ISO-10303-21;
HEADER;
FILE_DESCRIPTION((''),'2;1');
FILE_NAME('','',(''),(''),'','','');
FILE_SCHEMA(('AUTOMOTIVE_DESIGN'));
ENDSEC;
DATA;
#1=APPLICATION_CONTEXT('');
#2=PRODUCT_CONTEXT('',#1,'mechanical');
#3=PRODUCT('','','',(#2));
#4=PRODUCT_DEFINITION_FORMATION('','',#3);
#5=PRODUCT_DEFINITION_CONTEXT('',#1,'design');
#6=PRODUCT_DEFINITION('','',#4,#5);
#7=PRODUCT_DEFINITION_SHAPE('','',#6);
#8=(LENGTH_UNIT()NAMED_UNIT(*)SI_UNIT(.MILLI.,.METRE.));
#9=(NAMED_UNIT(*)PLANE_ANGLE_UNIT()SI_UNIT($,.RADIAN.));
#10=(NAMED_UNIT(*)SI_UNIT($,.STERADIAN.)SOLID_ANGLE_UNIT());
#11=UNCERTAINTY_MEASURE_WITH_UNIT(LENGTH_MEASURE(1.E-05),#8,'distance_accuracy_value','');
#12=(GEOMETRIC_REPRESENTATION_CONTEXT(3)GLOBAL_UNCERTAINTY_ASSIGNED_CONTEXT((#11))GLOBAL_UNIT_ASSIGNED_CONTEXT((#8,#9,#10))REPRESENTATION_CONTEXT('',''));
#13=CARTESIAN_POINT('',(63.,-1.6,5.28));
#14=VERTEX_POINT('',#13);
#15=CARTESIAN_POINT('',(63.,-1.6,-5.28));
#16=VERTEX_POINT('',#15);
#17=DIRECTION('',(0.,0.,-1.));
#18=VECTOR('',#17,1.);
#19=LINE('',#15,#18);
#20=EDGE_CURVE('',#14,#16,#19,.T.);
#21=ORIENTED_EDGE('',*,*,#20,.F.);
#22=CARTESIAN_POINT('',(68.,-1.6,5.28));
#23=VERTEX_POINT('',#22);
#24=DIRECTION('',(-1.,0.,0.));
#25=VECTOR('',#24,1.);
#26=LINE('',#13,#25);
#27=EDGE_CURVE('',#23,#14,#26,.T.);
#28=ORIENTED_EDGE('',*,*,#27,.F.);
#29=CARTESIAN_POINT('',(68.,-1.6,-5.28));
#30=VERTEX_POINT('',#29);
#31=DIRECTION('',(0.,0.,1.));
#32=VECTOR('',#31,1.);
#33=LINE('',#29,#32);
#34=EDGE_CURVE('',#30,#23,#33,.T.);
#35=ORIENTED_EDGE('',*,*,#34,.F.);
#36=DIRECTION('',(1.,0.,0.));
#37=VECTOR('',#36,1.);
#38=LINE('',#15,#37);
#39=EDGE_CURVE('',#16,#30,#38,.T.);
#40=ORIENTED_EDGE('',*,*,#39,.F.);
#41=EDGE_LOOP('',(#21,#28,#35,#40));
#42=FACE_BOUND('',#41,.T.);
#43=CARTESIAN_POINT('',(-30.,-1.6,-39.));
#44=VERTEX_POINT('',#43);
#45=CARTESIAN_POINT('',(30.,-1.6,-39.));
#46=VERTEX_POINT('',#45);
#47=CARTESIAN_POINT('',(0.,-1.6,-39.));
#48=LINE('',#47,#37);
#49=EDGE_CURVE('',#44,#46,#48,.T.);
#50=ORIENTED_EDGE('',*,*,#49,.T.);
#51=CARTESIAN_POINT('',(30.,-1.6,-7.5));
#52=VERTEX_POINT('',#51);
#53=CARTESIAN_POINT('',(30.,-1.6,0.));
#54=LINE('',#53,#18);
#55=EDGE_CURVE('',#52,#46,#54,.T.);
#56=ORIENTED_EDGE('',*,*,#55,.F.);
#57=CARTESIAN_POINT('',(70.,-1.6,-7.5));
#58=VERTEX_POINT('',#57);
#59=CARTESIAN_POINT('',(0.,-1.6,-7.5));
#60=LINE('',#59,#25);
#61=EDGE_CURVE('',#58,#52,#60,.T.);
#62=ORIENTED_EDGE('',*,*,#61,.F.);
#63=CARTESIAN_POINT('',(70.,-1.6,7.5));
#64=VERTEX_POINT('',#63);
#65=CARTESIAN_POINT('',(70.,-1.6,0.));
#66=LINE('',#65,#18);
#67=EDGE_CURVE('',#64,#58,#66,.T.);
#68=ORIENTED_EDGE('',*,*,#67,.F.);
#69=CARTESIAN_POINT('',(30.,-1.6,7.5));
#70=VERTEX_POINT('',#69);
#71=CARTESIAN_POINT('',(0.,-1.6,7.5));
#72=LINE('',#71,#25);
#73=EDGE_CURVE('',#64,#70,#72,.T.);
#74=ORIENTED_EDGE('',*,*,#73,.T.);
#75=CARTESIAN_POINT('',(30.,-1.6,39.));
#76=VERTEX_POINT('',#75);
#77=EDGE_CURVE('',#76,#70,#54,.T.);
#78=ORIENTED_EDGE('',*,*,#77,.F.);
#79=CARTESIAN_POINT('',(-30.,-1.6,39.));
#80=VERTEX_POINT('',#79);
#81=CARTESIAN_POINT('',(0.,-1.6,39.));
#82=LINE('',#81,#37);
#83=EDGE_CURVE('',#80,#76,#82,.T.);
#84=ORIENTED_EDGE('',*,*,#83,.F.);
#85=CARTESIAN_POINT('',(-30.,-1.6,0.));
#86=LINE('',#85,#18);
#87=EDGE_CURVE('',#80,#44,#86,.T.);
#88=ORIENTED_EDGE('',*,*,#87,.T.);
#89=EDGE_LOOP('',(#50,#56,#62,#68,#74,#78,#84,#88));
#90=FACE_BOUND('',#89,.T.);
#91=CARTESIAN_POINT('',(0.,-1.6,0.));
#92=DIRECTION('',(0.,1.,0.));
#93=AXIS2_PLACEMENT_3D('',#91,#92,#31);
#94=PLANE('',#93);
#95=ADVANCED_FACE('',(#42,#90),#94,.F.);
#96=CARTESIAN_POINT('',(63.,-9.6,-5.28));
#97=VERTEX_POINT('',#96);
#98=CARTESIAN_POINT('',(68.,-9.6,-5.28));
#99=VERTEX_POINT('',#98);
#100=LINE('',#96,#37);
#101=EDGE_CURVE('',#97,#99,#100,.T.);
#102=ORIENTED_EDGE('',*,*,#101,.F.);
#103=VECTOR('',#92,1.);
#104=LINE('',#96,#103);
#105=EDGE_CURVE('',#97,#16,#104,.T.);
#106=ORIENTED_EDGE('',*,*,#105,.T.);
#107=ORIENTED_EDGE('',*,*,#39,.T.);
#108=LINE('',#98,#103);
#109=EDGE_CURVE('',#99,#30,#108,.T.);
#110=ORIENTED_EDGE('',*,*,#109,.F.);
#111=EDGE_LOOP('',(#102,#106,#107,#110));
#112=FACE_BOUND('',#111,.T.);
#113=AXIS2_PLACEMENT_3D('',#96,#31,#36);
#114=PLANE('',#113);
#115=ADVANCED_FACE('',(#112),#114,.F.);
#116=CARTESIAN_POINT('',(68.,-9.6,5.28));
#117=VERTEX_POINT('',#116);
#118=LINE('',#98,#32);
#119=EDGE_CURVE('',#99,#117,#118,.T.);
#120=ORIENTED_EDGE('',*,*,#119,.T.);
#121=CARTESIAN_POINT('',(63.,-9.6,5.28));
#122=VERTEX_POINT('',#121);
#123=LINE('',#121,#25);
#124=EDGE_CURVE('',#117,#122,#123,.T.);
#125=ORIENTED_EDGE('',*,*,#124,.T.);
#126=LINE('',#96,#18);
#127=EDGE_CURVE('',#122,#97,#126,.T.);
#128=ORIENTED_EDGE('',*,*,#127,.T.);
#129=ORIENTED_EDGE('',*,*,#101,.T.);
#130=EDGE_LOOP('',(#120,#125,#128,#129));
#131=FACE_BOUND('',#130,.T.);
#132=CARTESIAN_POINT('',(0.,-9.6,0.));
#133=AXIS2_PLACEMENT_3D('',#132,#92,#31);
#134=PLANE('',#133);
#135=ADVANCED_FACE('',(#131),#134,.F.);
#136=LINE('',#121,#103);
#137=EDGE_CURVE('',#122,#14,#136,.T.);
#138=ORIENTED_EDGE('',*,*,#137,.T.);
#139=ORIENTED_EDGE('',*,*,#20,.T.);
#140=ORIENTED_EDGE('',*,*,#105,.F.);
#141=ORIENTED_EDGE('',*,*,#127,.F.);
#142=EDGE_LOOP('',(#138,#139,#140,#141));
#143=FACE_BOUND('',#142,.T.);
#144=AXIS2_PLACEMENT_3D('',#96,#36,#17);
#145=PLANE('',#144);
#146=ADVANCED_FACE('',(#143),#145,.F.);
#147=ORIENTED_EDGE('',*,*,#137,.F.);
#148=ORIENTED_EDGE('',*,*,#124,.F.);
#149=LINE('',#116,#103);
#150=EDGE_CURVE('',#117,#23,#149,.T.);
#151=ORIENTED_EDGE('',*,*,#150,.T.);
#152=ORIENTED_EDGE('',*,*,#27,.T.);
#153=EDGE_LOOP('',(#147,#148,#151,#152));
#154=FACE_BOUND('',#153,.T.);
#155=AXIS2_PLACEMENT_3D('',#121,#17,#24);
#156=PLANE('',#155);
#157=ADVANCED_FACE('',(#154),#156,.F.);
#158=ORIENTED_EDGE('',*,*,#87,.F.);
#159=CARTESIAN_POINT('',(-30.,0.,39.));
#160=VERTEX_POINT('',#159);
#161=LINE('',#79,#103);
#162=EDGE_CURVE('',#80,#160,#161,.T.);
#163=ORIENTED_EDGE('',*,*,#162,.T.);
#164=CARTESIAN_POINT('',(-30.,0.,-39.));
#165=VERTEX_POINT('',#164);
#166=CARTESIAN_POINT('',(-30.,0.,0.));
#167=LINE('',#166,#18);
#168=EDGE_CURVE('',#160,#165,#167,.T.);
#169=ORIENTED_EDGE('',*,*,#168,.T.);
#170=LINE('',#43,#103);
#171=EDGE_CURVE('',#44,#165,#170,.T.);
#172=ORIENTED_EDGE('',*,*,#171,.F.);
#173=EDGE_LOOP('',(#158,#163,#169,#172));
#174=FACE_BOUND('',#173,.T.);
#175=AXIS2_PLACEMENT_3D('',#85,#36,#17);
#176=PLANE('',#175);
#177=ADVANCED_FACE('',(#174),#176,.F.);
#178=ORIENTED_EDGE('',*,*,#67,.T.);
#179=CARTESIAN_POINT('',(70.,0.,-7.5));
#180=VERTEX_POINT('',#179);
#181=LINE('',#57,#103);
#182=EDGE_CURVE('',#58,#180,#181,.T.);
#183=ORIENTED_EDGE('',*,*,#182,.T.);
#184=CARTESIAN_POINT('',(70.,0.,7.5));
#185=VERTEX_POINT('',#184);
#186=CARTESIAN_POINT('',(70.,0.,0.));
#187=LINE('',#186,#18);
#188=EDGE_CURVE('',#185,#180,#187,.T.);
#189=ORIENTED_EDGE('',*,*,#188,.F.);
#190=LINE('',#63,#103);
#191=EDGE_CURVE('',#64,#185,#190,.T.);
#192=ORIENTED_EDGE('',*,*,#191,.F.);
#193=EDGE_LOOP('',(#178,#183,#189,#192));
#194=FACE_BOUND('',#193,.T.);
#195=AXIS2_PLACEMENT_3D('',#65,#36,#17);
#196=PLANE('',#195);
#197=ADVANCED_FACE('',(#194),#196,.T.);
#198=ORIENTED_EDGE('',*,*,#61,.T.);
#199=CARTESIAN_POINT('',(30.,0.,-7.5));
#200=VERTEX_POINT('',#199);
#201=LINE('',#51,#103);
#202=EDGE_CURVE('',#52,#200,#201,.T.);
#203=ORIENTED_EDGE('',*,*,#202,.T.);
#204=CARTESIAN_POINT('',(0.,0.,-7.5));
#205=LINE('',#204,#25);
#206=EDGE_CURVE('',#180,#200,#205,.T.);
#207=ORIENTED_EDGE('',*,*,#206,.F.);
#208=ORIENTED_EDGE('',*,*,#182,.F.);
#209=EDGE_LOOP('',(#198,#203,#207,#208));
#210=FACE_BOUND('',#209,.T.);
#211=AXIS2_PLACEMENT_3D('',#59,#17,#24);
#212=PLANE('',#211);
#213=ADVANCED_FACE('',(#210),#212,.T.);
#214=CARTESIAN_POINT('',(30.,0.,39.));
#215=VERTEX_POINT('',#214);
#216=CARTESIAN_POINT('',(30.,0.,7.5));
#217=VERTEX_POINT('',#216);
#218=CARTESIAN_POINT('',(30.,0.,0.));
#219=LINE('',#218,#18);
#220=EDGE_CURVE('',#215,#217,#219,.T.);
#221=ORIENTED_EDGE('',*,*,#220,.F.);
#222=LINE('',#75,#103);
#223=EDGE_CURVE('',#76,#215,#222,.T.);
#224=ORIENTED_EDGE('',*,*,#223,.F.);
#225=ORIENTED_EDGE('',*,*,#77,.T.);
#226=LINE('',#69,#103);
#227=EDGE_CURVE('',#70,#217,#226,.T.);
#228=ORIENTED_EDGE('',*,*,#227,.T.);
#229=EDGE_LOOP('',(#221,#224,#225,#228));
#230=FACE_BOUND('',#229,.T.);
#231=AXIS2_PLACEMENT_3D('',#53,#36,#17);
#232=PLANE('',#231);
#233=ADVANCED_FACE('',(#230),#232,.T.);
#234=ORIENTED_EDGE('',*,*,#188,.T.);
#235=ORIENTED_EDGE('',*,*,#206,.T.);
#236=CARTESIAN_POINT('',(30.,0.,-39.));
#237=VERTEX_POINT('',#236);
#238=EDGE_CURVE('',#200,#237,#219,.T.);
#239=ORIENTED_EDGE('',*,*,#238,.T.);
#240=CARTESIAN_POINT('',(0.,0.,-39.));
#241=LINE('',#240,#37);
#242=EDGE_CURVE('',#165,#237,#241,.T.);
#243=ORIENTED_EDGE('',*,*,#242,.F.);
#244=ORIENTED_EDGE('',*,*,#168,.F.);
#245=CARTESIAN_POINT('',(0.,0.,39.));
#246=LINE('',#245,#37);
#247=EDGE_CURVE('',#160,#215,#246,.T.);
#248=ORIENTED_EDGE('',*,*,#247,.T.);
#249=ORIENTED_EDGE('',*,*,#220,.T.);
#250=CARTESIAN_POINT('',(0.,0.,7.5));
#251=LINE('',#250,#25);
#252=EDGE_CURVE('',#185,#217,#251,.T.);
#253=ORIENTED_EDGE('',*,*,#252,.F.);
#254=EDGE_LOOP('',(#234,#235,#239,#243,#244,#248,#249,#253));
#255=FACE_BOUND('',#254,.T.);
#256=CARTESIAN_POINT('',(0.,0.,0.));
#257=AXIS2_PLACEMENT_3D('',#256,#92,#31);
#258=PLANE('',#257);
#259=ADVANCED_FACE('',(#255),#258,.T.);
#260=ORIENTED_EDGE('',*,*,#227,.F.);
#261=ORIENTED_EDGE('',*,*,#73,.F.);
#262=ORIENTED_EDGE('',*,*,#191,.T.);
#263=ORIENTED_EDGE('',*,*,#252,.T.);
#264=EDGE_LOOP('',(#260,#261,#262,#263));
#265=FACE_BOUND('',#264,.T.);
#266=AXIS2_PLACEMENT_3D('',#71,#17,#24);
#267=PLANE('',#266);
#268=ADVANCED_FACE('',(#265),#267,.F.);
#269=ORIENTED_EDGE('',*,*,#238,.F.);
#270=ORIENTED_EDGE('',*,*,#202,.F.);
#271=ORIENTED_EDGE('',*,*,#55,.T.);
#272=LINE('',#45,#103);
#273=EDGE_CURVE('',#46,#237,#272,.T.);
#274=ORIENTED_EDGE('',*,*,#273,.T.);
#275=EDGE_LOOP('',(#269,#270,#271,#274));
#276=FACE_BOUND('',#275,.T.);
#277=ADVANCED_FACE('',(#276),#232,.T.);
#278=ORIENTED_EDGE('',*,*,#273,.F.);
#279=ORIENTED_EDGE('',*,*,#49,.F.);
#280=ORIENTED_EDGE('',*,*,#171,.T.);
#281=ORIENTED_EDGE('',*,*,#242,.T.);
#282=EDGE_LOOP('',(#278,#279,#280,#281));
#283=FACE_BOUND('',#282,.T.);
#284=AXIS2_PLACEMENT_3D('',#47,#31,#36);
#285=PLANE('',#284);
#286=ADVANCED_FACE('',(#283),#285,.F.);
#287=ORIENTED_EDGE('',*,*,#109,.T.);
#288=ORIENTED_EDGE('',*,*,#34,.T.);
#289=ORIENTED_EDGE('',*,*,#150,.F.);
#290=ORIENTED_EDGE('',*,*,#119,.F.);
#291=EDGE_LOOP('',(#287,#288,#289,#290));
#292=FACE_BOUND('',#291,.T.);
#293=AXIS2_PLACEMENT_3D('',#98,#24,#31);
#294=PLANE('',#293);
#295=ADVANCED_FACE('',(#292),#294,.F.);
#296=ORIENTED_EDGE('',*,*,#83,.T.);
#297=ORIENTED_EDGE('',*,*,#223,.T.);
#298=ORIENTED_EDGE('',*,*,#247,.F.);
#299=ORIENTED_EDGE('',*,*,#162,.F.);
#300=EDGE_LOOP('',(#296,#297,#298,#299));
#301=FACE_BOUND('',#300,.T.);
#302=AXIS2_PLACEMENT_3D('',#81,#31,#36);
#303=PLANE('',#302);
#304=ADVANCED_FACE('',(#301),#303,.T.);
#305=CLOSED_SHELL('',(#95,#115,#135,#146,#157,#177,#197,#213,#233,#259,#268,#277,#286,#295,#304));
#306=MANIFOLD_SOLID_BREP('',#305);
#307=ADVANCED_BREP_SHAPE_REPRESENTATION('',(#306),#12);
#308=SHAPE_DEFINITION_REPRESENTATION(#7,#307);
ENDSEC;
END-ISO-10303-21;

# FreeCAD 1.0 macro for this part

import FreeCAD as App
import Part
import Sketcher

V = App.Vector


def add_polygon(sketch, points):
    """Adds a closed chain of lines whose ends are joined by coincident constraints."""
    first, n = sketch.GeometryCount, len(points)
    for a, b in zip(points, points[1:] + points[:1]):
        sketch.addGeometry(Part.LineSegment(App.Vector(*a, 0), App.Vector(*b, 0)), False)
    for i in range(n):
        sketch.addConstraint(Sketcher.Constraint("Coincident", first + i, 2, first + (i + 1) % n, 1))

doc = App.newDocument("Part")
body = doc.addObject("PartDesign::Body", "Body")

# Sketch on XZ plane
sketch1 = body.newObject("Sketcher::SketchObject", "Sketch")
sketch1.AttachmentSupport = (doc.getObject("XZ_Plane"), [""])
sketch1.MapMode = "FlatFace"
add_polygon(sketch1, [(-30, -39), (-30, 39), (30, 39), (30, 8), (70, 8), (70, -8), (30, -8), (30, -39)])  # lines 0-7
sketch1.addConstraint([
    Sketcher.Constraint("Vertical", 0),
    Sketcher.Constraint("Horizontal", 1),
    Sketcher.Constraint("Vertical", 2),
    Sketcher.Constraint("Horizontal", 3),
    Sketcher.Constraint("Vertical", 4),
    Sketcher.Constraint("Horizontal", 5),
    Sketcher.Constraint("Vertical", 6),
    Sketcher.Constraint("Horizontal", 7),
    Sketcher.Constraint("Symmetric", 0, 2, 6, 2, -1, 1),
    Sketcher.Constraint("Symmetric", 2, 2, 5, 2, -1),
    Sketcher.Constraint("DistanceX", 1, 1, 1, 2, 60.0),
    Sketcher.Constraint("DistanceX", 3, 1, 3, 2, 40.0),
    Sketcher.Constraint("DistanceY", 0, 1, 0, 2, 78.0),
    Sketcher.Constraint("DistanceY", 4, 2, 4, 1, 15.0),
])
pad1 = body.newObject("PartDesign::Pad", "Pad")
pad1.Profile = sketch1
pad1.Length = 1.6

# Sketch on XZ plane
sketch2 = body.newObject("Sketcher::SketchObject", "Sketch001")
sketch2.AttachmentSupport = (doc.getObject("XZ_Plane"), [""])
sketch2.MapMode = "FlatFace"
sketch2.AttachmentOffset = App.Placement(V(0, 0, 1.6), App.Rotation())
add_polygon(sketch2, [(63, 5), (63, -5), (68, -5), (68, 5)])  # lines 0-3
sketch2.addConstraint([
    Sketcher.Constraint("Vertical", 0),
    Sketcher.Constraint("Horizontal", 1),
    Sketcher.Constraint("Vertical", 2),
    Sketcher.Constraint("Horizontal", 3),
    Sketcher.Constraint("DistanceX", 1, 1, 1, 2, 5.0),
    Sketcher.Constraint("DistanceX", -1, 1, 0, 2, 63.0),
    Sketcher.Constraint("DistanceY", 0, 2, 0, 1, 10.56),
    Sketcher.Constraint("DistanceY", 0, 2, -1, 1, 5.28),
])
pad2 = body.newObject("PartDesign::Pad", "Pad001")
pad2.Profile = sketch2
pad2.Length = 8

doc.recompute()
